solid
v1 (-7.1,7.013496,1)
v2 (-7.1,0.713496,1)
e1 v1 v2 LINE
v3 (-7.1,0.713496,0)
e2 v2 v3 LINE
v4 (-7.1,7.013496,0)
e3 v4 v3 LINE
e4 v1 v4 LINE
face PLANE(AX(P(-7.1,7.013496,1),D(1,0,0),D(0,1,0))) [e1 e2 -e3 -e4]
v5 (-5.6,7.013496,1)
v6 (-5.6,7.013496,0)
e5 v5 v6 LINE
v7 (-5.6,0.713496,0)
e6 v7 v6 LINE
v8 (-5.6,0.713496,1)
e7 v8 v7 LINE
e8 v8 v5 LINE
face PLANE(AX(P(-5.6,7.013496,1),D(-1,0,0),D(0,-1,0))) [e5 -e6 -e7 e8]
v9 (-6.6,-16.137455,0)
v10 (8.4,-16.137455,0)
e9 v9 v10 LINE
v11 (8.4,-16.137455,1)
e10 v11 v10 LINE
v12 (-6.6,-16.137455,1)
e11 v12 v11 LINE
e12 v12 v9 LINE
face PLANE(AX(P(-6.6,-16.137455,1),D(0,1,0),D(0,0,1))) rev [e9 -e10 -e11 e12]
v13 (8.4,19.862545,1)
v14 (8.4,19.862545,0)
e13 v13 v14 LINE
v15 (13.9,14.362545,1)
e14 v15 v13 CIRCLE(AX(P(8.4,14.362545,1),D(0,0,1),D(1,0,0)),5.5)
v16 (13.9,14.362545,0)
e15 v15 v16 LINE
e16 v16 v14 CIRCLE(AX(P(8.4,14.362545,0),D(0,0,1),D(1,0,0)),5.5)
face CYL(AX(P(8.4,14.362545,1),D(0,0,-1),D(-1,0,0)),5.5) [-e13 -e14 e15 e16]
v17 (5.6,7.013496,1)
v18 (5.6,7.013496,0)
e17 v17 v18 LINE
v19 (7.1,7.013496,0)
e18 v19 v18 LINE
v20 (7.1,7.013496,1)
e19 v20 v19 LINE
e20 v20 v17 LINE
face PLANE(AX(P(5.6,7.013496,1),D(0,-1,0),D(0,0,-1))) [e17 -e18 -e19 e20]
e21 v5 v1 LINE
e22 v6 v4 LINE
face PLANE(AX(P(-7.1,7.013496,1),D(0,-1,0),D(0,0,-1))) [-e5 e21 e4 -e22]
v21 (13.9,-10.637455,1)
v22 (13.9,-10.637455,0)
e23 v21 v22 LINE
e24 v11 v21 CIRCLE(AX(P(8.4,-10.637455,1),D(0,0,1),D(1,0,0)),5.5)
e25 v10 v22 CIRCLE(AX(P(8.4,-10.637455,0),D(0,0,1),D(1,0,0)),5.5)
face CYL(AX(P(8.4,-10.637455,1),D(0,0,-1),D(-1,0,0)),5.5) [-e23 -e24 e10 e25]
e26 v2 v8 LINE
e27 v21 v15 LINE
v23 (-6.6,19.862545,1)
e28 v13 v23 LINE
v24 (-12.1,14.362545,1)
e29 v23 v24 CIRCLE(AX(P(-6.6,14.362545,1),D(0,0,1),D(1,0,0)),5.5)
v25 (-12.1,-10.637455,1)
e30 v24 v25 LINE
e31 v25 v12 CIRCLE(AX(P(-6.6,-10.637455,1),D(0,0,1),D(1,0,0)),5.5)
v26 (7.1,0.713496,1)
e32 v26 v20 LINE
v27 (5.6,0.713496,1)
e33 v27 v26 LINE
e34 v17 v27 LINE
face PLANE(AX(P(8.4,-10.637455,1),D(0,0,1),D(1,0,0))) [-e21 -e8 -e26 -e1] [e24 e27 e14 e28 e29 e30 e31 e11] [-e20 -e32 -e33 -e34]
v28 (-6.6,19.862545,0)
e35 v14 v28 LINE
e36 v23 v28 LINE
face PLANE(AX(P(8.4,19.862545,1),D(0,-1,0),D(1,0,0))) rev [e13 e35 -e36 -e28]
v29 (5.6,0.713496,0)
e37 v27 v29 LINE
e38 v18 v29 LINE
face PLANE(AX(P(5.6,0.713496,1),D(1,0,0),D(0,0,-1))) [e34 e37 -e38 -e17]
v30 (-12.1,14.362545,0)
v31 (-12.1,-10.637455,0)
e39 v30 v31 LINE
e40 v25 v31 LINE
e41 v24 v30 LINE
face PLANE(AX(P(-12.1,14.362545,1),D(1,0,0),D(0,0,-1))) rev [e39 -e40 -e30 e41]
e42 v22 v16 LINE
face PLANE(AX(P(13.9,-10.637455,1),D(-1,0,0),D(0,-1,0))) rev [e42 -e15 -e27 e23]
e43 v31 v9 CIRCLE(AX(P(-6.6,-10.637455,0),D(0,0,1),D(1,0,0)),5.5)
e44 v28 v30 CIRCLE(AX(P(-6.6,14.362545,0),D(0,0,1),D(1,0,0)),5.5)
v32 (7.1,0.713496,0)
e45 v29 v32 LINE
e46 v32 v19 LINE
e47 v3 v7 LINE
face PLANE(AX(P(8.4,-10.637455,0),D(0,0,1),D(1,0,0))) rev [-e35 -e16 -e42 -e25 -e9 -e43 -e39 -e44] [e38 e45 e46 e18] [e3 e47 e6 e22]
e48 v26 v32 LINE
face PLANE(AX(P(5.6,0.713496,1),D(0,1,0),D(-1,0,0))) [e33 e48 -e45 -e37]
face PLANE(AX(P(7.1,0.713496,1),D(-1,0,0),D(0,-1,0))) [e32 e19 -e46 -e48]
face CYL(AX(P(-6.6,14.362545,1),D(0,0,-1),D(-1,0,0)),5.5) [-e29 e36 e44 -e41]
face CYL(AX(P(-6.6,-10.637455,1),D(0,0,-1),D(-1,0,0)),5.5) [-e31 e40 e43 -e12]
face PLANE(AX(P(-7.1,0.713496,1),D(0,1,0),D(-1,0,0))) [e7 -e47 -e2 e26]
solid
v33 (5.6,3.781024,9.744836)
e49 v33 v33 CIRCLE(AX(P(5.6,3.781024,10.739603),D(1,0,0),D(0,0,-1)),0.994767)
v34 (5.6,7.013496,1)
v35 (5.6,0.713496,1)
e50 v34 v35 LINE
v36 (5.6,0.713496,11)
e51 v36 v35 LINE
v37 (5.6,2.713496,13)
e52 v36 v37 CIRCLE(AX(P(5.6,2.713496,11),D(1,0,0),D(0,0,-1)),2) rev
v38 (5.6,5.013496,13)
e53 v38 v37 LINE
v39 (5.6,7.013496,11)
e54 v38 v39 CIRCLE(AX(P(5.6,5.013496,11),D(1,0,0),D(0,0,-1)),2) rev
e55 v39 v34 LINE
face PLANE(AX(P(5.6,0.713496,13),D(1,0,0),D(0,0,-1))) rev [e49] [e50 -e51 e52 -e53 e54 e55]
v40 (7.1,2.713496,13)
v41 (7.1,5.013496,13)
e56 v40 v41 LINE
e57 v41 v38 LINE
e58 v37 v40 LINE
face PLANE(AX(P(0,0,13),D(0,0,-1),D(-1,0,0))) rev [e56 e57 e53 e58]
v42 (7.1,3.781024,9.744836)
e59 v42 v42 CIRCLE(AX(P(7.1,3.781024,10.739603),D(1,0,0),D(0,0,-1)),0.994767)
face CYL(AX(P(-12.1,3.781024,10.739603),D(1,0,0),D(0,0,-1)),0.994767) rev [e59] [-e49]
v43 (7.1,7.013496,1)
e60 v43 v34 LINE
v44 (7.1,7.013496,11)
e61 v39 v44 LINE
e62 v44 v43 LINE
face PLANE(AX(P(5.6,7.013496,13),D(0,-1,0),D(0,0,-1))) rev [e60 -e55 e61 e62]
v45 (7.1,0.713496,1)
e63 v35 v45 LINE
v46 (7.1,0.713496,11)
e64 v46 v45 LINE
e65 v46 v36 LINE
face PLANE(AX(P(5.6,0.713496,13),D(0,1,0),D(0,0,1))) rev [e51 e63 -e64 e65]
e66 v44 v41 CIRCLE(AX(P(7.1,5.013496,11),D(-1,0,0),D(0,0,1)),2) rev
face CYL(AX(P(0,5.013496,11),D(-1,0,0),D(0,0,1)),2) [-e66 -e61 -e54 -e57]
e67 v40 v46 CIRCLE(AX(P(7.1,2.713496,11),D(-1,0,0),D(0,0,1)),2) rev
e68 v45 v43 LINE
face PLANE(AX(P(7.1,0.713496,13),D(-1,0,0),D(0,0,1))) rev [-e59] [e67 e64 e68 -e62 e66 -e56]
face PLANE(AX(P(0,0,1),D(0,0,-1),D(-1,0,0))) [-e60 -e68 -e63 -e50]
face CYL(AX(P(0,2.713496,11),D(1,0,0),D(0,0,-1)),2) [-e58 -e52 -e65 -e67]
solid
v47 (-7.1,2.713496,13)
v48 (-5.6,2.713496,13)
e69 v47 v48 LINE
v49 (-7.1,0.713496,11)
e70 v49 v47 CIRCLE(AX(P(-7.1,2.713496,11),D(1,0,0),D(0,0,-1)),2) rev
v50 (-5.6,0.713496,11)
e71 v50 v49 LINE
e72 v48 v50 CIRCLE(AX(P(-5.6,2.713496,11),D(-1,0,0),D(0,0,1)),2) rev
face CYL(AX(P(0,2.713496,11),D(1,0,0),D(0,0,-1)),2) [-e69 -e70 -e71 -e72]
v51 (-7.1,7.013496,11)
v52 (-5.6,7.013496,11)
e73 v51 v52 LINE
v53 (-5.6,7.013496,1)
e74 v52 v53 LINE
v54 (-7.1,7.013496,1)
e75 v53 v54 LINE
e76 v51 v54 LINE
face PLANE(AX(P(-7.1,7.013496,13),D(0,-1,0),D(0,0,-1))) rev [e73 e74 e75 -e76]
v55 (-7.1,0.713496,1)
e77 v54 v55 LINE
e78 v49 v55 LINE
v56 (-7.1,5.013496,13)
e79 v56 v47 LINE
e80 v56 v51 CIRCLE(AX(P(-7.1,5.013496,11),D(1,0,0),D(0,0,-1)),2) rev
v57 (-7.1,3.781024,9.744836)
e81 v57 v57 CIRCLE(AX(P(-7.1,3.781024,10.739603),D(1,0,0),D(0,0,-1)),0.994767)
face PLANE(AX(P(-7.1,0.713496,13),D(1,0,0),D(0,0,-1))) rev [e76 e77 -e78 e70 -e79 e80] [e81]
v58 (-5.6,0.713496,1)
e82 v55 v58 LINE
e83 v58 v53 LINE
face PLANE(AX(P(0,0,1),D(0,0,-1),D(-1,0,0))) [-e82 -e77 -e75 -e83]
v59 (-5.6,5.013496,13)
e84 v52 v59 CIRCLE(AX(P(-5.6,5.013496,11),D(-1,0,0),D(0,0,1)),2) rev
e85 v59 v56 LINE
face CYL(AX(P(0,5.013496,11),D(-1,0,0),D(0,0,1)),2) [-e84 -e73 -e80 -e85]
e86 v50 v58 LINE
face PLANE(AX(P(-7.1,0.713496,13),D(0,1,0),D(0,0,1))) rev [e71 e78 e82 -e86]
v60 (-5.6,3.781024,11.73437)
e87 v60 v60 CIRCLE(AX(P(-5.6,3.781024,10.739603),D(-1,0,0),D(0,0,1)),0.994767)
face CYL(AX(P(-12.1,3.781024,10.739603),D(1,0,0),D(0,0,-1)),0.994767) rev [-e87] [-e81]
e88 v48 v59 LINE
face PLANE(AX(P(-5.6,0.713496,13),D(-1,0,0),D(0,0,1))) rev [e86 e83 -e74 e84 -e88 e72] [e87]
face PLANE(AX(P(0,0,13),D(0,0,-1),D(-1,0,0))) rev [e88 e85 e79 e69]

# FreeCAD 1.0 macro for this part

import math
import FreeCAD as App
import Part
import Sketcher
Q = App.Units.Quantity


def edges_at(feature, points):
    """Names of the edges that pass closest to the given points."""
    edges = feature.Shape.Edges
    near = lambda p: min(range(len(edges)), key=lambda i: edges[i].distToShape(Part.Vertex(*p))[0])
    return sorted({f"Edge{near(p) + 1}" for p in points})

doc = App.newDocument("Part")
body = doc.addObject("PartDesign::Body", "Body")

sketch1 = body.newObject("Sketcher::SketchObject", "Sketch")
sketch1.AttachmentSupport = (doc.getObject("XY_Plane"), [""])
sketch1.MapMode = "FlatFace"
sketch1.addGeometry(Part.LineSegment(App.Vector(13.9, -10.637455, 0), App.Vector(13.9, 14.362545, 0)), False)
sketch1.addGeometry(Part.ArcOfCircle(Part.Circle(App.Vector(8.4, 14.362545, 0), App.Vector(0, 0, 1), 5.5), math.radians(0), math.radians(90)), False)
sketch1.addGeometry(Part.LineSegment(App.Vector(8.4, 19.862545, 0), App.Vector(-6.6, 19.862545, 0)), False)
sketch1.addGeometry(Part.ArcOfCircle(Part.Circle(App.Vector(-6.6, 14.362545, 0), App.Vector(0, 0, 1), 5.5), math.radians(90), math.radians(180)), False)
sketch1.addGeometry(Part.LineSegment(App.Vector(-12.1, 14.362545, 0), App.Vector(-12.1, -10.637455, 0)), False)
sketch1.addGeometry(Part.ArcOfCircle(Part.Circle(App.Vector(-6.6, -10.637455, 0), App.Vector(0, 0, 1), 5.5), math.radians(180), math.radians(270)), False)
sketch1.addGeometry(Part.LineSegment(App.Vector(-6.6, -16.137455, 0), App.Vector(8.4, -16.137455, 0)), False)
sketch1.addGeometry(Part.ArcOfCircle(Part.Circle(App.Vector(8.4, -10.637455, 0), App.Vector(0, 0, 1), 5.5), math.radians(-90), math.radians(0)), False)
sketch1.addGeometry(Part.LineSegment(App.Vector(-5.6, 0.713496, 0), App.Vector(-7.1, 0.713496, 0)), False)
sketch1.addGeometry(Part.LineSegment(App.Vector(-7.1, 0.713496, 0), App.Vector(-7.1, 7.013496, 0)), False)
sketch1.addGeometry(Part.LineSegment(App.Vector(-7.1, 7.013496, 0), App.Vector(-5.6, 7.013496, 0)), False)
sketch1.addGeometry(Part.LineSegment(App.Vector(-5.6, 7.013496, 0), App.Vector(-5.6, 0.713496, 0)), False)
sketch1.addGeometry(Part.LineSegment(App.Vector(7.1, 0.713496, 0), App.Vector(5.6, 0.713496, 0)), False)
sketch1.addGeometry(Part.LineSegment(App.Vector(5.6, 0.713496, 0), App.Vector(5.6, 7.013496, 0)), False)
sketch1.addGeometry(Part.LineSegment(App.Vector(5.6, 7.013496, 0), App.Vector(7.1, 7.013496, 0)), False)
sketch1.addGeometry(Part.LineSegment(App.Vector(7.1, 7.013496, 0), App.Vector(7.1, 0.713496, 0)), False)
sketch1.addConstraint(Sketcher.Constraint("Tangent", 0, 2, 1, 1))
sketch1.addConstraint(Sketcher.Constraint("Tangent", 1, 2, 2, 1))
sketch1.addConstraint(Sketcher.Constraint("Tangent", 2, 2, 3, 1))
sketch1.addConstraint(Sketcher.Constraint("Tangent", 3, 2, 4, 1))
sketch1.addConstraint(Sketcher.Constraint("Tangent", 4, 2, 5, 1))
sketch1.addConstraint(Sketcher.Constraint("Tangent", 5, 2, 6, 1))
sketch1.addConstraint(Sketcher.Constraint("Tangent", 6, 2, 7, 1))
sketch1.addConstraint(Sketcher.Constraint("Tangent", 7, 2, 0, 1))
sketch1.addConstraint(Sketcher.Constraint("Coincident", 8, 2, 9, 1))
sketch1.addConstraint(Sketcher.Constraint("Coincident", 9, 2, 10, 1))
sketch1.addConstraint(Sketcher.Constraint("Coincident", 10, 2, 11, 1))
sketch1.addConstraint(Sketcher.Constraint("Coincident", 11, 2, 8, 1))
sketch1.addConstraint(Sketcher.Constraint("Coincident", 12, 2, 13, 1))
sketch1.addConstraint(Sketcher.Constraint("Coincident", 13, 2, 14, 1))
sketch1.addConstraint(Sketcher.Constraint("Coincident", 14, 2, 15, 1))
sketch1.addConstraint(Sketcher.Constraint("Coincident", 15, 2, 12, 1))
sketch1.addConstraint(Sketcher.Constraint("Vertical", 0))
sketch1.addConstraint(Sketcher.Constraint("Horizontal", 2))
sketch1.addConstraint(Sketcher.Constraint("Vertical", 4))
sketch1.addConstraint(Sketcher.Constraint("Horizontal", 6))
sketch1.addConstraint(Sketcher.Constraint("Horizontal", 8))
sketch1.addConstraint(Sketcher.Constraint("Vertical", 9))
sketch1.addConstraint(Sketcher.Constraint("Horizontal", 10))
sketch1.addConstraint(Sketcher.Constraint("Vertical", 11))
sketch1.addConstraint(Sketcher.Constraint("Horizontal", 12))
sketch1.addConstraint(Sketcher.Constraint("Vertical", 13))
sketch1.addConstraint(Sketcher.Constraint("Horizontal", 14))
sketch1.addConstraint(Sketcher.Constraint("Vertical", 15))
sketch1.addConstraint(Sketcher.Constraint("Equal", 1, 3))
sketch1.addConstraint(Sketcher.Constraint("Equal", 3, 5))
sketch1.addConstraint(Sketcher.Constraint("Equal", 5, 7))
sketch1.addConstraint(Sketcher.Constraint("Symmetric", 11, 2, 12, 2, -2))
sketch1.addConstraint(Sketcher.Constraint("Symmetric", 9, 2, 14, 2, -2))
sketch1.addConstraint(Sketcher.Constraint("Radius", 1, Q("5.5 mm")))
sketch1.addConstraint(Sketcher.Constraint("DistanceX", 2, 2, 2, 1, Q("15 mm")))
sketch1.addConstraint(Sketcher.Constraint("DistanceY", 0, 1, 0, 2, Q("25 mm")))
sketch1.addConstraint(Sketcher.Constraint("DistanceX", 8, 2, 8, 1, Q("1.5 mm")))
sketch1.addConstraint(Sketcher.Constraint("DistanceY", 9, 1, 9, 2, Q("6.3 mm")))
sketch1.addConstraint(Sketcher.Constraint("DistanceX", 4, 2, 8, 2, Q("5 mm")))
sketch1.addConstraint(Sketcher.Constraint("DistanceX", -1, 1, 1, 3, Q("8.4 mm")))
sketch1.addConstraint(Sketcher.Constraint("DistanceY", 5, 3, 8, 2, Q("11.350951 mm")))
sketch1.addConstraint(Sketcher.Constraint("DistanceY", -1, 1, 1, 3, Q("14.362545 mm")))
pad1 = body.newObject("PartDesign::Pad", "Pad")
pad1.Profile = sketch1
pad1.Length = 1
body2 = doc.addObject("PartDesign::Body", "Body001")

sketch2 = body2.newObject("Sketcher::SketchObject", "Sketch001")
sketch2.AttachmentSupport = (doc.getObject("XY_Plane001"), [""])
sketch2.MapMode = "FlatFace"
sketch2.AttachmentOffset = App.Placement(App.Vector(0, 0, 1), App.Rotation())
sketch2.addGeometry(Part.LineSegment(App.Vector(-7.1, 7.013496, 0), App.Vector(-7.1, 0.713496, 0)), False)
sketch2.addGeometry(Part.LineSegment(App.Vector(-7.1, 0.713496, 0), App.Vector(-5.6, 0.713496, 0)), False)
sketch2.addGeometry(Part.LineSegment(App.Vector(-5.6, 0.713496, 0), App.Vector(-5.6, 7.013496, 0)), False)
sketch2.addGeometry(Part.LineSegment(App.Vector(-5.6, 7.013496, 0), App.Vector(-7.1, 7.013496, 0)), False)
sketch2.addConstraint(Sketcher.Constraint("Coincident", 0, 2, 1, 1))
sketch2.addConstraint(Sketcher.Constraint("Coincident", 1, 2, 2, 1))
sketch2.addConstraint(Sketcher.Constraint("Coincident", 2, 2, 3, 1))
sketch2.addConstraint(Sketcher.Constraint("Coincident", 3, 2, 0, 1))
sketch2.addConstraint(Sketcher.Constraint("Vertical", 0))
sketch2.addConstraint(Sketcher.Constraint("Horizontal", 1))
sketch2.addConstraint(Sketcher.Constraint("Vertical", 2))
sketch2.addConstraint(Sketcher.Constraint("Horizontal", 3))
sketch2.addConstraint(Sketcher.Constraint("DistanceX", 1, 1, 1, 2, Q("1.5 mm")))
sketch2.addConstraint(Sketcher.Constraint("DistanceY", 0, 2, 0, 1, Q("6.3 mm")))
sketch2.addConstraint(Sketcher.Constraint("DistanceX", 0, 2, -1, 1, Q("7.1 mm")))
sketch2.addConstraint(Sketcher.Constraint("DistanceY", -1, 1, 0, 2, Q("0.713496 mm")))
pad2 = body2.newObject("PartDesign::Pad", "Pad001")
pad2.Profile = sketch2
pad2.Length = 12
body3 = doc.addObject("PartDesign::Body", "Body002")

sketch3 = body3.newObject("Sketcher::SketchObject", "Sketch002")
sketch3.AttachmentSupport = (doc.getObject("XY_Plane002"), [""])
sketch3.MapMode = "FlatFace"
sketch3.AttachmentOffset = App.Placement(App.Vector(0, 0, 1), App.Rotation())
sketch3.addGeometry(Part.LineSegment(App.Vector(5.6, 7.013496, 0), App.Vector(5.6, 0.713496, 0)), False)
sketch3.addGeometry(Part.LineSegment(App.Vector(5.6, 0.713496, 0), App.Vector(7.1, 0.713496, 0)), False)
sketch3.addGeometry(Part.LineSegment(App.Vector(7.1, 0.713496, 0), App.Vector(7.1, 7.013496, 0)), False)
sketch3.addGeometry(Part.LineSegment(App.Vector(7.1, 7.013496, 0), App.Vector(5.6, 7.013496, 0)), False)
sketch3.addConstraint(Sketcher.Constraint("Coincident", 0, 2, 1, 1))
sketch3.addConstraint(Sketcher.Constraint("Coincident", 1, 2, 2, 1))
sketch3.addConstraint(Sketcher.Constraint("Coincident", 2, 2, 3, 1))
sketch3.addConstraint(Sketcher.Constraint("Coincident", 3, 2, 0, 1))
sketch3.addConstraint(Sketcher.Constraint("Vertical", 0))
sketch3.addConstraint(Sketcher.Constraint("Horizontal", 1))
sketch3.addConstraint(Sketcher.Constraint("Vertical", 2))
sketch3.addConstraint(Sketcher.Constraint("Horizontal", 3))
sketch3.addConstraint(Sketcher.Constraint("DistanceX", 1, 1, 1, 2, Q("1.5 mm")))
sketch3.addConstraint(Sketcher.Constraint("DistanceY", 0, 2, 0, 1, Q("6.3 mm")))
sketch3.addConstraint(Sketcher.Constraint("DistanceX", -1, 1, 0, 2, Q("5.6 mm")))
sketch3.addConstraint(Sketcher.Constraint("DistanceY", -1, 1, 0, 2, Q("0.713496 mm")))
pad3 = body3.newObject("PartDesign::Pad", "Pad002")
pad3.Profile = sketch3
pad3.Length = 12
body4 = doc.addObject("PartDesign::Body", "Body003")

sketch4 = body4.newObject("Sketcher::SketchObject", "Sketch003")
sketch4.AttachmentSupport = (doc.getObject("YZ_Plane003"), [""])
sketch4.MapMode = "FlatFace"
sketch4.AttachmentOffset = App.Placement(App.Vector(0, 0, 7.1), App.Rotation())
sketch4.addGeometry(Part.Circle(App.Vector(3.781024, 10.739603, 0), App.Vector(0, 0, 1), 0.994767), False)
sketch4.addConstraint(Sketcher.Constraint("Diameter", 0, Q("1.989534 mm")))
sketch4.addConstraint(Sketcher.Constraint("DistanceX", -1, 1, 0, 3, Q("3.781024 mm")))
sketch4.addConstraint(Sketcher.Constraint("DistanceY", -1, 1, 0, 3, Q("10.739603 mm")))
pad4 = body4.newObject("PartDesign::Pad", "Pad003")
pad4.Profile = sketch4
pad4.Length = 20.2
pad4.Reversed = True
doc.recompute()

body5 = doc.addObject("PartDesign::Body", "Body004")
body5.BaseFeature = body4
boolean = body2.newObject("PartDesign::Boolean", "Boolean")
boolean.Type = "Cut"
boolean.addObjects([body5])
doc.recompute()

fillet = body2.newObject("PartDesign::Fillet", "Fillet")
fillet.Base = (boolean, edges_at(boolean, [(-6.35, 7.013, 13), (-6.35, 0.713, 13)]))
fillet.Radius = 2
doc.recompute()

boolean2 = body3.newObject("PartDesign::Boolean", "Boolean001")
boolean2.Type = "Cut"
boolean2.addObjects([body4])
doc.recompute()

fillet2 = body3.newObject("PartDesign::Fillet", "Fillet001")
fillet2.Base = (boolean2, edges_at(boolean2, [(6.35, 0.713, 13), (6.35, 7.013, 13)]))
fillet2.Radius = 2

doc.recompute()
